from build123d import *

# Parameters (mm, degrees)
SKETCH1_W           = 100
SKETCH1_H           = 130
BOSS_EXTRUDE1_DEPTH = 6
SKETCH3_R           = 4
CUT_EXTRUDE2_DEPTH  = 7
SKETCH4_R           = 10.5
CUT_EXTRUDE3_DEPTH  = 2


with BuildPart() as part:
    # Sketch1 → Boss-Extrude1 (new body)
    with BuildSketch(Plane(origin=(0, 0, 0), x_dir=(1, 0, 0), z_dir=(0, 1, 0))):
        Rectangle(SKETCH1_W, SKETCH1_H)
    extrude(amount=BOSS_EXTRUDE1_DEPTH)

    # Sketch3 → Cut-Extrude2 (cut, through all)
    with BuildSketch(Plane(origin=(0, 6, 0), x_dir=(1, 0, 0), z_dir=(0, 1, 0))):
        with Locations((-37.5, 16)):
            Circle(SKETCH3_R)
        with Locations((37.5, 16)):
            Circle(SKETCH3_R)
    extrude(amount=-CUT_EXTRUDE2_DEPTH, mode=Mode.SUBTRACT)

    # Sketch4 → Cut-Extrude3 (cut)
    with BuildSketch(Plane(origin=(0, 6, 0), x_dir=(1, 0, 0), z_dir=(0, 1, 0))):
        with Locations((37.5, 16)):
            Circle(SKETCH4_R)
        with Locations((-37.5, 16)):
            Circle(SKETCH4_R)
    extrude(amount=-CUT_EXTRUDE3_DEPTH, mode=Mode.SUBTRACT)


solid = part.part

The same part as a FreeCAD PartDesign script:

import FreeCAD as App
import Part
import Sketcher

V = App.Vector
Q = App.Units.Quantity


def add_polygon(sketch, points):
    """Adds a closed chain of lines whose ends are joined by coincident constraints."""
    first, n = sketch.GeometryCount, len(points)
    for a, b in zip(points, points[1:] + points[:1]):
        sketch.addGeometry(Part.LineSegment(App.Vector(*a, 0), App.Vector(*b, 0)), False)
    for i in range(n):
        sketch.addConstraint(Sketcher.Constraint("Coincident", first + i, 2, first + (i + 1) % n, 1))

doc = App.newDocument("Part")
body = doc.addObject("PartDesign::Body", "Body")

# Sketch on XZ plane
sketch1 = body.newObject("Sketcher::SketchObject", "Sketch")
sketch1.AttachmentSupport = (doc.getObject("XZ_Plane"), [""])
sketch1.MapMode = "FlatFace"
add_polygon(sketch1, [(-50, -65), (-50, 65), (50, 65), (50, -65)])  # lines 0-3
sketch1.addConstraint([
    Sketcher.Constraint("Vertical", 0),
    Sketcher.Constraint("Horizontal", 1),
    Sketcher.Constraint("Vertical", 2),
    Sketcher.Constraint("Horizontal", 3),
    Sketcher.Constraint("Symmetric", 0, 2, 2, 2, -1, 1),
    Sketcher.Constraint("DistanceX", 1, 1, 1, 2, Q("100 mm")),
    Sketcher.Constraint("DistanceY", 0, 1, 0, 2, Q("130 mm")),
])
pad1 = body.newObject("PartDesign::Pad", "Pad")
pad1.Profile = sketch1
pad1.Length = 6
pad1.Reversed = True

# Sketch on XZ plane
sketch2 = body.newObject("Sketcher::SketchObject", "Sketch001")
sketch2.AttachmentSupport = (doc.getObject("XZ_Plane"), [""])
sketch2.MapMode = "FlatFace"
sketch2.AttachmentOffset = App.Placement(V(0, 0, -6), App.Rotation())
sketch2.addGeometry([
    Part.Circle(V(-37.5, -16, 0), V(0, 0, 1), 4),
    Part.Circle(V(37.5, -16, 0), V(0, 0, 1), 4),
], False)
sketch2.addConstraint([
    Sketcher.Constraint("Equal", 0, 1),
    Sketcher.Constraint("Symmetric", 0, 3, 1, 3, -2),
    Sketcher.Constraint("Diameter", 0, Q("8 mm")),
    Sketcher.Constraint("DistanceY", 0, 3, -1, 1, Q("16 mm")),
    Sketcher.Constraint("DistanceX", 0, 3, 1, 3, Q("75 mm")),
])
pocket1 = body.newObject("PartDesign::Pocket", "Pocket")
pocket1.Profile = sketch2
pocket1.Type = "ThroughAll"
pocket1.Reversed = True

# Sketch on XZ plane
sketch3 = body.newObject("Sketcher::SketchObject", "Sketch002")
sketch3.AttachmentSupport = (doc.getObject("XZ_Plane"), [""])
sketch3.MapMode = "FlatFace"
sketch3.AttachmentOffset = App.Placement(V(0, 0, -6), App.Rotation())
sketch3.addGeometry([
    Part.Circle(V(38, -16, 0), V(0, 0, 1), 10),
    Part.Circle(V(-38, -16, 0), V(0, 0, 1), 10),
], False)
sketch3.addConstraint([
    Sketcher.Constraint("Equal", 0, 1),
    Sketcher.Constraint("Symmetric", 0, 3, 1, 3, -2),
    Sketcher.Constraint("Diameter", 0, Q("21 mm")),
    Sketcher.Constraint("DistanceY", 0, 3, -1, 1, Q("16 mm")),
    Sketcher.Constraint("DistanceX", 1, 3, 0, 3, Q("75 mm")),
])
pocket2 = body.newObject("PartDesign::Pocket", "Pocket001")
pocket2.Profile = sketch3
pocket2.Length = 2
pocket2.Reversed = True

doc.recompute()
